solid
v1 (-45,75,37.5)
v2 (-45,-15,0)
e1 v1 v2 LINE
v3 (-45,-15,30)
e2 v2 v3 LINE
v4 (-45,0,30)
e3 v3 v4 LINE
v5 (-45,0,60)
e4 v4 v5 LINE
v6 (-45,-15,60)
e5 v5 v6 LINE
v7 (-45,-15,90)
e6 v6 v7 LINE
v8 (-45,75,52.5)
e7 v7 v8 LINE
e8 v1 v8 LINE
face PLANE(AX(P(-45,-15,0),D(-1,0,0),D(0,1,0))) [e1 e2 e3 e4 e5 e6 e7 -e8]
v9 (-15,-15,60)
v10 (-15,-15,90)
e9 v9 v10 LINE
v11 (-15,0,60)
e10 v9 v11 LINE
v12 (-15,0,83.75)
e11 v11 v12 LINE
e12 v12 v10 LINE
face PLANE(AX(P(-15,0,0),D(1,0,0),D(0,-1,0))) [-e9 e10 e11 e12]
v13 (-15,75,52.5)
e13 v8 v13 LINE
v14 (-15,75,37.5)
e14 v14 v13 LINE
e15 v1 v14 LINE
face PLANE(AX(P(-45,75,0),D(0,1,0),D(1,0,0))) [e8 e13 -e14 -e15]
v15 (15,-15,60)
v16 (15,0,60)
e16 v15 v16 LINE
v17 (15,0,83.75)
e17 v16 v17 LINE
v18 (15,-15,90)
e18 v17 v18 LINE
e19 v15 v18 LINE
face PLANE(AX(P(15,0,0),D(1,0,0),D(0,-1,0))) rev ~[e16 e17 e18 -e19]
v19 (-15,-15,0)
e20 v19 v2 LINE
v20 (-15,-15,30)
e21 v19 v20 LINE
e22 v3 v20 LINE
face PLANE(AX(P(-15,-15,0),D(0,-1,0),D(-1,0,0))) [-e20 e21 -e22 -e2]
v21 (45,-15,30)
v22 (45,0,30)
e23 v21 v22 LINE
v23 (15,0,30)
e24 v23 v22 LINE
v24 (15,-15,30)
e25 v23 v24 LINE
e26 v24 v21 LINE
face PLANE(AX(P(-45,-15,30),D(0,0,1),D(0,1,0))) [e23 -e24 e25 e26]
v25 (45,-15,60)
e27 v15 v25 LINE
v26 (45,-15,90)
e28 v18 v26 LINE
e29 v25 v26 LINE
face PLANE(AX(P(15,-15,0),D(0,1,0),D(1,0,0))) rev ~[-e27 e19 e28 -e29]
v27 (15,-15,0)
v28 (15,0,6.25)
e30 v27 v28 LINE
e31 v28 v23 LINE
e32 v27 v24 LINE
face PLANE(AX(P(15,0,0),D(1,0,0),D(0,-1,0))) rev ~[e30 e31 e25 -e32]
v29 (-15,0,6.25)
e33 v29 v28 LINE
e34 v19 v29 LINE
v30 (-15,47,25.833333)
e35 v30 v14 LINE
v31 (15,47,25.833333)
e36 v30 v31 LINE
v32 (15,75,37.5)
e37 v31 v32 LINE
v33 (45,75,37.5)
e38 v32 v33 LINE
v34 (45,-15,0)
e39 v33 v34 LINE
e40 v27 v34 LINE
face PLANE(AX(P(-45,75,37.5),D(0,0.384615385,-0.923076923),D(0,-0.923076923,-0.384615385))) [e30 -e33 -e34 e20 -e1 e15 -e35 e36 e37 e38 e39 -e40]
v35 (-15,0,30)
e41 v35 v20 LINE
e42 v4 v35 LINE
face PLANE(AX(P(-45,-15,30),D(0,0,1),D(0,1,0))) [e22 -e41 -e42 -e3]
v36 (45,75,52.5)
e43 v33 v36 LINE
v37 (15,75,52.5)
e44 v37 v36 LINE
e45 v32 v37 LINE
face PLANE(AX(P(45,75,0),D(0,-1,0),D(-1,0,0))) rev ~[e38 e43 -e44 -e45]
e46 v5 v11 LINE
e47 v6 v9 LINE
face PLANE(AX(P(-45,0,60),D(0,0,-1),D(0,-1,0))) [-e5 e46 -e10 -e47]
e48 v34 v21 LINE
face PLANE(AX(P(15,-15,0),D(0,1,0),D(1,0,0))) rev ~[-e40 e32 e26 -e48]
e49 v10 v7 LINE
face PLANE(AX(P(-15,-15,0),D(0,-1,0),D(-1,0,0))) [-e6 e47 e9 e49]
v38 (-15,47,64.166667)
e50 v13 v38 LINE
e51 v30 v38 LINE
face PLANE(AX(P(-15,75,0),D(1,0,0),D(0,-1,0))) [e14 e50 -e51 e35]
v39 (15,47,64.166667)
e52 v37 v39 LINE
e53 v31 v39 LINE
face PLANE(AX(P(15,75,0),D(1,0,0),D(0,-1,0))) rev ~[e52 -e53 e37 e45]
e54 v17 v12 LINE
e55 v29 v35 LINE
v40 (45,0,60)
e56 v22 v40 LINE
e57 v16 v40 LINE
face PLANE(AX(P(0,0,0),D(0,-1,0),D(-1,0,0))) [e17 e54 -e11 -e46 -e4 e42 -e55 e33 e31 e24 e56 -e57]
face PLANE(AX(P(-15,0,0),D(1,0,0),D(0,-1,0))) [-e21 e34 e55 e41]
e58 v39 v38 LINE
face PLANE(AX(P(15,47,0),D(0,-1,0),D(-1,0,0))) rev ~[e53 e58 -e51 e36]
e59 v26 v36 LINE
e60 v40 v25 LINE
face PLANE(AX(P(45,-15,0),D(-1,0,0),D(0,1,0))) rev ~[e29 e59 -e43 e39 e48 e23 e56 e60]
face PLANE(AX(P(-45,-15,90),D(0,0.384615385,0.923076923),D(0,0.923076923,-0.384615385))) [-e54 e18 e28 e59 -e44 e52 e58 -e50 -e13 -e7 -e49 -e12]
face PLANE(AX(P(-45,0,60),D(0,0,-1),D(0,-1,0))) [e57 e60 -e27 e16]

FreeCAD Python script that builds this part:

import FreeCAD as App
import Part
import Sketcher

V = App.Vector


def add_polygon(sketch, points):
    """Adds a closed chain of lines whose ends are joined by coincident constraints."""
    first, n = sketch.GeometryCount, len(points)
    for a, b in zip(points, points[1:] + points[:1]):
        sketch.addGeometry(Part.LineSegment(App.Vector(*a, 0), App.Vector(*b, 0)), False)
    for i in range(n):
        sketch.addConstraint(Sketcher.Constraint("Coincident", first + i, 2, first + (i + 1) % n, 1))

doc = App.newDocument("Part")
body = doc.addObject("PartDesign::Body", "Body")

# Sketch on XY plane
sketch1 = doc.addObject("Sketcher::SketchObject", "Sketch")
body.addObject(sketch1)
sketch1.AttachmentSupport = (doc.XY_Plane, [""])
sketch1.MapMode = "FlatFace"
add_polygon(sketch1, [(-15, 0), (15, 0), (15, -15), (45, -15), (45, 75), (15, 75), (15, 47), (-15, 47), (-15, 75), (-45, 75), (-45, -15), (-15, -15)])  # lines 0-11
sketch1.addConstraint([
    Sketcher.Constraint("Horizontal", 0),
    Sketcher.Constraint("Vertical", 1),
    Sketcher.Constraint("Horizontal", 2),
    Sketcher.Constraint("Vertical", 3),
    Sketcher.Constraint("Horizontal", 4),
    Sketcher.Constraint("Vertical", 5),
    Sketcher.Constraint("Horizontal", 6),
    Sketcher.Constraint("Vertical", 7),
    Sketcher.Constraint("Horizontal", 8),
    Sketcher.Constraint("Vertical", 9),
    Sketcher.Constraint("Horizontal", 10),
    Sketcher.Constraint("Vertical", 11),
    Sketcher.Constraint("Symmetric", 0, 2, 11, 2, -1, 1),
    Sketcher.Constraint("Symmetric", 4, 2, 7, 2, -2),
    Sketcher.Constraint("Symmetric", 2, 2, 9, 2, -2),
    Sketcher.Constraint("Vertical", 1, 2, 4, 2),
    Sketcher.Constraint("Equal", 0, 2),
    Sketcher.Constraint("DistanceX", 0, 1, 0, 2, 30.0),
    Sketcher.Constraint("DistanceY", 1, 2, 1, 1, 15.0),
    Sketcher.Constraint("DistanceY", 3, 1, 3, 2, 90.0),
    Sketcher.Constraint("DistanceY", 5, 2, 5, 1, 28.0),
])
pad1 = doc.addObject("PartDesign::Pad", "Pad")
body.addObject(pad1)
pad1.Profile = sketch1
pad1.Length = 90

# Sketch on YZ plane
sketch2 = doc.addObject("Sketcher::SketchObject", "Sketch001")
body.addObject(sketch2)
sketch2.AttachmentSupport = (doc.YZ_Plane, [""])
sketch2.MapMode = "FlatFace"
sketch2.AttachmentOffset = App.Placement(V(0, 0, -45), App.Rotation())
add_polygon(sketch2, [(75, 38), (75, 0), (-15, 0)])  # lines 0-2
add_polygon(sketch2, [(0, 30), (-15, 30), (-15, 60), (0, 60)])  # lines 3-6
add_polygon(sketch2, [(75, 90), (75, 52), (-15, 90)])  # lines 7-9
sketch2.addConstraint([
    Sketcher.Constraint("Vertical", 0),
    Sketcher.Constraint("Horizontal", 1),
    Sketcher.Constraint("Horizontal", 3),
    Sketcher.Constraint("Vertical", 4),
    Sketcher.Constraint("Horizontal", 5),
    Sketcher.Constraint("Vertical", 6),
    Sketcher.Constraint("Vertical", 7),
    Sketcher.Constraint("Horizontal", 9),
    Sketcher.Constraint("PointOnObject", 0, 2, -1),
    Sketcher.Constraint("PointOnObject", 5, 2, -2),
    Sketcher.Constraint("Vertical", 1, 2, 3, 2),
    Sketcher.Constraint("Vertical", 2, 2, 7, 2),
    Sketcher.Constraint("Vertical", 4, 2, 8, 2),
    Sketcher.Constraint("Equal", 0, 7),
    Sketcher.Constraint("DistanceX", 3, 2, 3, 1, 15.0),
    Sketcher.Constraint("DistanceY", 4, 1, 4, 2, 30.0),
    Sketcher.Constraint("DistanceY", -1, 1, 3, 2, 30.0),
    Sketcher.Constraint("DistanceY", 2, 2, 7, 2, 15.0),
    Sketcher.Constraint("DistanceY", 4, 2, 8, 2, 30.0),
    Sketcher.Constraint("DistanceX", 1, 2, 1, 1, 90.0),
])
pocket1 = doc.addObject("PartDesign::Pocket", "Pocket")
body.addObject(pocket1)
pocket1.Profile = sketch2
pocket1.Length = 90
pocket1.Reversed = True

doc.recompute()
